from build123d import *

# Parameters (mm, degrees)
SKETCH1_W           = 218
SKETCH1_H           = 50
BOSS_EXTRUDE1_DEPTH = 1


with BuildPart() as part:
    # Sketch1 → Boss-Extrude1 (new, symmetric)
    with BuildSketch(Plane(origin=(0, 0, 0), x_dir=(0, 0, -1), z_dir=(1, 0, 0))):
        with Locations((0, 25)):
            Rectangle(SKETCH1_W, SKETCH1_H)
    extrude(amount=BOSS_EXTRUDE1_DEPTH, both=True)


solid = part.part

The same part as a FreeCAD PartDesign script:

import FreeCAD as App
import Part
import Sketcher

doc = App.newDocument("Part")
body = doc.addObject("PartDesign::Body", "Body")

sketch1 = body.newObject("Sketcher::SketchObject", "Sketch")
sketch1.AttachmentSupport = (doc.getObject("YZ_Plane"), [""])
sketch1.MapMode = "FlatFace"
sketch1.addGeometry(Part.LineSegment(App.Vector(50, 109, 0), App.Vector(0, 109, 0)), False)
sketch1.addGeometry(Part.LineSegment(App.Vector(0, 109, 0), App.Vector(0, -109, 0)), False)
sketch1.addGeometry(Part.LineSegment(App.Vector(0, -109, 0), App.Vector(50, -109, 0)), False)
sketch1.addGeometry(Part.LineSegment(App.Vector(50, -109, 0), App.Vector(50, 109, 0)), False)
sketch1.addConstraint(Sketcher.Constraint("Coincident", 0, 2, 1, 1))
sketch1.addConstraint(Sketcher.Constraint("Coincident", 1, 2, 2, 1))
sketch1.addConstraint(Sketcher.Constraint("Coincident", 2, 2, 3, 1))
sketch1.addConstraint(Sketcher.Constraint("Coincident", 3, 2, 0, 1))
sketch1.addConstraint(Sketcher.Constraint("Horizontal", 0))
sketch1.addConstraint(Sketcher.Constraint("Vertical", 1))
sketch1.addConstraint(Sketcher.Constraint("Horizontal", 2))
sketch1.addConstraint(Sketcher.Constraint("Vertical", 3))
sketch1.addConstraint(Sketcher.Constraint("Symmetric", 0, 2, 1, 2, -1, 1))
sketch1.addConstraint(Sketcher.Constraint("DistanceX", 0, 2, 0, 1, 50.0))
sketch1.addConstraint(Sketcher.Constraint("DistanceY", 1, 2, 1, 1, 218.0))
pad1 = body.newObject("PartDesign::Pad", "Pad")
pad1.Profile = sketch1
pad1.Length = 2
pad1.Midplane = True

doc.recompute()
